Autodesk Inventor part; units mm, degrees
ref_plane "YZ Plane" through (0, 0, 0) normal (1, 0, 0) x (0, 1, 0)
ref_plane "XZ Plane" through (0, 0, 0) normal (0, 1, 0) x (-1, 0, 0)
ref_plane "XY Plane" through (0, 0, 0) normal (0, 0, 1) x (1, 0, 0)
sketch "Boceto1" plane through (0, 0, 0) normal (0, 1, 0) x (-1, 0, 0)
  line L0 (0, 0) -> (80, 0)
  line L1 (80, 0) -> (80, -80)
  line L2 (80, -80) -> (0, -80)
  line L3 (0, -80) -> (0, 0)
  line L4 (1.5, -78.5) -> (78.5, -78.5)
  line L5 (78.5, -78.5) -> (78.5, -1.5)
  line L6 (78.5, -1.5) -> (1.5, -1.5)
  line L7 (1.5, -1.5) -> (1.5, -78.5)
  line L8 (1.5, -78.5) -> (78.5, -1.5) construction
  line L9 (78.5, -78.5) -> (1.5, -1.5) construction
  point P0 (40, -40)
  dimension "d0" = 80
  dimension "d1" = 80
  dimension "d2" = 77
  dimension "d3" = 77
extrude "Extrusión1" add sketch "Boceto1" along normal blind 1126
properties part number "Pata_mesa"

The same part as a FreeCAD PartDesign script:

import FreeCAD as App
import Part
import Sketcher
Q = App.Units.Quantity


def add_polygon(sketch, points):
    """Adds a closed chain of lines whose ends are joined by coincident constraints."""
    first, n = sketch.GeometryCount, len(points)
    for a, b in zip(points, points[1:] + points[:1]):
        sketch.addGeometry(Part.LineSegment(App.Vector(*a, 0), App.Vector(*b, 0)), False)
    for i in range(n):
        sketch.addConstraint(Sketcher.Constraint("Coincident", first + i, 2, first + (i + 1) % n, 1))

doc = App.newDocument("Part")
params = doc.addObject("Spreadsheet::Sheet", "Params")
for row, (alias, value) in enumerate([
    ("sketch1_width", "80 mm"),
    ("sketch1_width2", "77 mm"),
    ("pad1_length", "1126 mm"),
], start=1):
    params.set(f"A{row}", alias)
    params.set(f"B{row}", "=" + value)
    params.setAlias(f"B{row}", alias)

body = doc.addObject("PartDesign::Body", "Body")

# Sketch on XZ plane
sketch1 = doc.addObject("Sketcher::SketchObject", "Sketch")
body.addObject(sketch1)
sketch1.AttachmentSupport = (doc.XZ_Plane, [""])
sketch1.MapMode = "FlatFace"
add_polygon(sketch1, [(-80, 0), (0, 0), (0, -80), (-80, -80)])  # lines 0-3
add_polygon(sketch1, [(-78, -78), (-2, -78), (-2, -2), (-78, -2)])  # lines 4-7
sketch1.addConstraint([
    Sketcher.Constraint("Horizontal", 0),
    Sketcher.Constraint("Vertical", 1),
    Sketcher.Constraint("Horizontal", 2),
    Sketcher.Constraint("Vertical", 3),
    Sketcher.Constraint("Horizontal", 4),
    Sketcher.Constraint("Vertical", 5),
    Sketcher.Constraint("Horizontal", 6),
    Sketcher.Constraint("Vertical", 7),
    Sketcher.Constraint("Coincident", 0, 2, -1, 1),
    Sketcher.Constraint("Equal", 2, 1),
    Sketcher.Constraint("Equal", 6, 5),
    Sketcher.Constraint("DistanceX", 0, 1, 0, 2, Q("80 mm")),
    Sketcher.Constraint("DistanceX", 4, 1, 4, 2, Q("77 mm")),
    Sketcher.Constraint("DistanceX", 4, 2, -1, 1, Q("1.5 mm")),
    Sketcher.Constraint("DistanceY", 4, 2, -1, 1, Q("78.5 mm")),
])
sketch1.setExpression("Constraints[19]", "Params.sketch1_width")
sketch1.setExpression("Constraints[20]", "Params.sketch1_width2")
pad1 = doc.addObject("PartDesign::Pad", "Pad")
body.addObject(pad1)
pad1.Profile = sketch1
pad1.setExpression("Length", "Params.pad1_length")
pad1.Reversed = True

doc.recompute()
